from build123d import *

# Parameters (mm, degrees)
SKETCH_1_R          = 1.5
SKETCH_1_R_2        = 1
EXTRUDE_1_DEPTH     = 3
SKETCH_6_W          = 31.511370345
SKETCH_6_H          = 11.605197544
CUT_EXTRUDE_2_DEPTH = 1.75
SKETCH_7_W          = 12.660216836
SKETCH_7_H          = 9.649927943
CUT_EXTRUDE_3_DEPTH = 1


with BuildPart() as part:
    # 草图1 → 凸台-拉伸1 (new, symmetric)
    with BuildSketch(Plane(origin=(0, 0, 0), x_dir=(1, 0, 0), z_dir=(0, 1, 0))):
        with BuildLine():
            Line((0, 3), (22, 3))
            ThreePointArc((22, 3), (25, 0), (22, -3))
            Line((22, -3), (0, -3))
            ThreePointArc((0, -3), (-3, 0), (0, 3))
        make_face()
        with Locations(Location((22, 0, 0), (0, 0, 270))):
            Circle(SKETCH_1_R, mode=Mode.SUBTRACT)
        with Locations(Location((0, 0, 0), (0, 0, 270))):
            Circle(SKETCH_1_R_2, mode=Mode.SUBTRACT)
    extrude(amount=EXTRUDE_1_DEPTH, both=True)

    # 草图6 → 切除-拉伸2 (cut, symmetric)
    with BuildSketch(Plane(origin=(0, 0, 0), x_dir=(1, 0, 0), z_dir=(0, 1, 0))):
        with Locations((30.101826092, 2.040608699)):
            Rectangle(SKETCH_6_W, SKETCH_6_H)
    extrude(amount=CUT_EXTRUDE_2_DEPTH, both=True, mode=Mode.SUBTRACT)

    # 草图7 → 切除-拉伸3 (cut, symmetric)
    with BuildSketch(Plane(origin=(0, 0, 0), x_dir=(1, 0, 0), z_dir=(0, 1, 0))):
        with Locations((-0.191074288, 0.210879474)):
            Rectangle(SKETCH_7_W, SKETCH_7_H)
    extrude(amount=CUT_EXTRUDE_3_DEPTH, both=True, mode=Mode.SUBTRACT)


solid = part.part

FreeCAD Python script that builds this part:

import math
import FreeCAD as App
import Part
import Sketcher
from FreeCAD import Vector


def add_polygon(sketch, points):
    """Adds a closed chain of lines whose ends are joined by coincident constraints."""
    first, n = sketch.GeometryCount, len(points)
    for a, b in zip(points, points[1:] + points[:1]):
        sketch.addGeometry(Part.LineSegment(App.Vector(*a, 0), App.Vector(*b, 0)), False)
    for i in range(n):
        sketch.addConstraint(Sketcher.Constraint("Coincident", first + i, 2, first + (i + 1) % n, 1))

doc = App.newDocument("Part")
body = doc.addObject("PartDesign::Body", "Body")

# Sketch on XZ plane
sketch1 = body.newObject("Sketcher::SketchObject", "Sketch")
sketch1.AttachmentSupport = (doc.getObject("XZ_Plane"), [""])
sketch1.MapMode = "FlatFace"
sketch1.addGeometry(Part.LineSegment(Vector(22, -3, 0), Vector(0, -3, 0)), False)
sketch1.addGeometry(Part.ArcOfCircle(Part.Circle(Vector(0, 0, 0), Vector(0, 0, 1), 3), math.radians(90), math.radians(270)), False)
sketch1.addGeometry(Part.LineSegment(Vector(0, 3, 0), Vector(22, 3, 0)), False)
sketch1.addGeometry(Part.ArcOfCircle(Part.Circle(Vector(22, 0, 0), Vector(0, 0, 1), 3), math.radians(-90), math.radians(90)), False)
sketch1.addGeometry(Part.Circle(Vector(22, 0, 0), Vector(0, 0, 1), 1.5), False)
sketch1.addGeometry(Part.Circle(Vector(0, 0, 0), Vector(0, 0, 1), 1), False)
sketch1.addConstraint(Sketcher.Constraint("Tangent", 0, 2, 1, 2))
sketch1.addConstraint(Sketcher.Constraint("Tangent", 1, 1, 2, 1))
sketch1.addConstraint(Sketcher.Constraint("Tangent", 2, 2, 3, 2))
sketch1.addConstraint(Sketcher.Constraint("Tangent", 3, 1, 0, 1))
sketch1.addConstraint(Sketcher.Constraint("Horizontal", 0))
sketch1.addConstraint(Sketcher.Constraint("Horizontal", 2))
sketch1.addConstraint(Sketcher.Constraint("Coincident", 1, 3, -1, 1))
sketch1.addConstraint(Sketcher.Constraint("Coincident", 5, 3, -1, 1))
sketch1.addConstraint(Sketcher.Constraint("Coincident", 4, 3, 3, 3))
sketch1.addConstraint(Sketcher.Constraint("Diameter", 4, 3.0))
sketch1.addConstraint(Sketcher.Constraint("Diameter", 5, 2.0))
sketch1.addConstraint(Sketcher.Constraint("Radius", 1, 3.0))
sketch1.addConstraint(Sketcher.Constraint("DistanceX", 0, 2, 0, 1, 22.0))
pad1 = body.newObject("PartDesign::Pad", "Pad")
pad1.Profile = sketch1
pad1.Length = 6
pad1.Midplane = True

# Sketch on XZ plane
sketch2 = body.newObject("Sketcher::SketchObject", "Sketch001")
sketch2.AttachmentSupport = (doc.getObject("XZ_Plane"), [""])
sketch2.MapMode = "FlatFace"
add_polygon(sketch2, [(14, -8), (14, 4), (46, 4), (46, -8)])  # lines 0-3
sketch2.addConstraint(Sketcher.Constraint("Vertical", 0))
sketch2.addConstraint(Sketcher.Constraint("Horizontal", 1))
sketch2.addConstraint(Sketcher.Constraint("Vertical", 2))
sketch2.addConstraint(Sketcher.Constraint("Horizontal", 3))
sketch2.addConstraint(Sketcher.Constraint("DistanceX", 1, 1, 1, 2, 31.51137))
sketch2.addConstraint(Sketcher.Constraint("DistanceY", 0, 1, 0, 2, 11.605198))
sketch2.addConstraint(Sketcher.Constraint("DistanceX", -1, 1, 0, 2, 14.346141))
sketch2.addConstraint(Sketcher.Constraint("DistanceY", -1, 1, 0, 2, 3.76199))
pocket1 = body.newObject("PartDesign::Pocket", "Pocket")
pocket1.Profile = sketch2
pocket1.Length = 3.5
pocket1.Midplane = True

# Sketch on XZ plane
sketch3 = body.newObject("Sketcher::SketchObject", "Sketch002")
sketch3.AttachmentSupport = (doc.getObject("XZ_Plane"), [""])
sketch3.MapMode = "FlatFace"
add_polygon(sketch3, [(-7, -5), (-7, 5), (6, 5), (6, -5)])  # lines 0-3
sketch3.addConstraint(Sketcher.Constraint("Vertical", 0))
sketch3.addConstraint(Sketcher.Constraint("Horizontal", 1))
sketch3.addConstraint(Sketcher.Constraint("Vertical", 2))
sketch3.addConstraint(Sketcher.Constraint("Horizontal", 3))
sketch3.addConstraint(Sketcher.Constraint("DistanceX", 1, 1, 1, 2, 12.660217))
sketch3.addConstraint(Sketcher.Constraint("DistanceY", 0, 1, 0, 2, 9.649928))
sketch3.addConstraint(Sketcher.Constraint("DistanceX", 0, 2, -1, 1, 6.521183))
sketch3.addConstraint(Sketcher.Constraint("DistanceY", -1, 1, 0, 2, 4.614084))
pocket2 = body.newObject("PartDesign::Pocket", "Pocket001")
pocket2.Profile = sketch3
pocket2.Length = 2
pocket2.Midplane = True

doc.recompute()
